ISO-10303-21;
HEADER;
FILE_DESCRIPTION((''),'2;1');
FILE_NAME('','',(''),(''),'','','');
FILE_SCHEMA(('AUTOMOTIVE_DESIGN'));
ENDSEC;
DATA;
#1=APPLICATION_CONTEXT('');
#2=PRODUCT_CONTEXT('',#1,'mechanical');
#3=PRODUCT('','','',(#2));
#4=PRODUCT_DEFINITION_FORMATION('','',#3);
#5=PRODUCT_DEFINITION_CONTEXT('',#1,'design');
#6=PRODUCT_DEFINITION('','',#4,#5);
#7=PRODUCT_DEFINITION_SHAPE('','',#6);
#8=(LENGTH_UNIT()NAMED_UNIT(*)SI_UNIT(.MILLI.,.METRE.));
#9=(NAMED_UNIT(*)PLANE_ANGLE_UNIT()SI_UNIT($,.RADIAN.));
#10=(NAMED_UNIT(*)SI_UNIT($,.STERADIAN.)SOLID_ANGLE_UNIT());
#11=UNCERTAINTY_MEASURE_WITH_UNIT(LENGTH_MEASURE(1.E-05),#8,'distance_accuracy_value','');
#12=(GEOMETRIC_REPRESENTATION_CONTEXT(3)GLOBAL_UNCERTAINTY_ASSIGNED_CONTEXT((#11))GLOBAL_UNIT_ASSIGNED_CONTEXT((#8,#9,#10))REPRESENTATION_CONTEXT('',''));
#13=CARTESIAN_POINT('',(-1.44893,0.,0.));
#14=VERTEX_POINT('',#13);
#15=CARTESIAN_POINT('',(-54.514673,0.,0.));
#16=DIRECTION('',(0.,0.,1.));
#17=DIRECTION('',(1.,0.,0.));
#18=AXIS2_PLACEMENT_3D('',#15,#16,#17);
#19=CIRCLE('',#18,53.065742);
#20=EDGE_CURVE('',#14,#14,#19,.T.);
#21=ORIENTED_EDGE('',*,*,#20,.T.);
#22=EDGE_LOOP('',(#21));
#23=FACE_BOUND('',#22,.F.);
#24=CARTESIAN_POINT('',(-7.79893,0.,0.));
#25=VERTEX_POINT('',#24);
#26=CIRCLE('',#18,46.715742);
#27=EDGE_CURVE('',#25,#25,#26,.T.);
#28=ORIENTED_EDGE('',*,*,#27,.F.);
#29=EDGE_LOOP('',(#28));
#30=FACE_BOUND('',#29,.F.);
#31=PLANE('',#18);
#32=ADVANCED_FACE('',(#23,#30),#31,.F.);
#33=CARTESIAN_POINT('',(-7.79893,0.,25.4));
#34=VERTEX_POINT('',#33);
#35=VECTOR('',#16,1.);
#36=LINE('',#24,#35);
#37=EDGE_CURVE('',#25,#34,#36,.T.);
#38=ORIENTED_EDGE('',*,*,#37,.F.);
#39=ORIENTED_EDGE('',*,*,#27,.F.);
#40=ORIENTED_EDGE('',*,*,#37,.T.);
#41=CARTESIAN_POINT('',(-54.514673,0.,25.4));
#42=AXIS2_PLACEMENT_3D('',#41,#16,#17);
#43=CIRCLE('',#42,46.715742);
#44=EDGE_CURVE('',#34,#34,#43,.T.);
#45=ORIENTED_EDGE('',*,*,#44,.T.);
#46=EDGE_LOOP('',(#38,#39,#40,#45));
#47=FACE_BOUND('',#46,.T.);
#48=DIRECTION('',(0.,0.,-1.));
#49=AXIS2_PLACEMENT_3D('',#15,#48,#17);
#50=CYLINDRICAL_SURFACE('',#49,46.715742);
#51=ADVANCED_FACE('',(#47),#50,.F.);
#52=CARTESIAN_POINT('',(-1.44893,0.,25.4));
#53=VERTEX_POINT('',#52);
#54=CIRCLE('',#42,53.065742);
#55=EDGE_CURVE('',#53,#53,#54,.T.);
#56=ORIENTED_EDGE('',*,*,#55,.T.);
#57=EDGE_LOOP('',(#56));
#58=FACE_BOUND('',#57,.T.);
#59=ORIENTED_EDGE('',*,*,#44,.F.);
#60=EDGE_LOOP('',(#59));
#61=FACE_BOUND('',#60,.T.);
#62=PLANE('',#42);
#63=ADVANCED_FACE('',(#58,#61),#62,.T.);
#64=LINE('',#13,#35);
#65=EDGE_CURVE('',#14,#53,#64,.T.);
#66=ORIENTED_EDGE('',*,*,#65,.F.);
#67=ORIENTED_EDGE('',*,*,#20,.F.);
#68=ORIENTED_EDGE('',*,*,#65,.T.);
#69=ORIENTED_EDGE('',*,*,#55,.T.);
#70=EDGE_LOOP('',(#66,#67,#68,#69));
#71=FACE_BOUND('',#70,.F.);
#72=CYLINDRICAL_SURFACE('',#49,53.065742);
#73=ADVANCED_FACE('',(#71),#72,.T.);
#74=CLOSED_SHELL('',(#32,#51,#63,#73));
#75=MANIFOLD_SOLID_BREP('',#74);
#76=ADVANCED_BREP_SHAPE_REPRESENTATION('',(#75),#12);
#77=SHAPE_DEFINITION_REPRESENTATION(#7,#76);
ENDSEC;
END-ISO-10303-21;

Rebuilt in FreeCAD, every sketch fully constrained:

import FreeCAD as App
import Part
import Sketcher
from FreeCAD import Vector


def faces_at(feature, points):
    """Names of the faces that lie closest to the given points."""
    faces = feature.Shape.Faces
    near = lambda p: min(range(len(faces)), key=lambda i: faces[i].distToShape(Part.Vertex(*p))[0])
    return sorted({f"Face{near(p) + 1}" for p in points})

doc = App.newDocument("Part")
params = doc.addObject("Spreadsheet::Sheet", "Params")
for row, (alias, value) in enumerate([
    ("pad1_length", "1 in"),
    ("pad2_length", "1 in"),
    ("thickness_wall", "0.25 in"),
], start=1):
    params.set(f"A{row}", alias)
    params.set(f"B{row}", "=" + value)
    params.setAlias(f"B{row}", alias)

body = doc.addObject("PartDesign::Body", "Body")

# Sketch on XY plane
sketch1 = doc.addObject("Sketcher::SketchObject", "Sketch")
body.addObject(sketch1)
sketch1.AttachmentSupport = (doc.XY_Plane, [""])
sketch1.MapMode = "FlatFace"
sketch1.addGeometry(Part.Circle(Vector(-54, 0, 0), Vector(0, 0, 1), 54), False)
sketch1.addConstraint([
    Sketcher.Constraint("PointOnObject", 0, 3, -1),
    Sketcher.Constraint("Diameter", 0, 107.706785),
    Sketcher.Constraint("DistanceX", 0, 3, -1, 1, 53.853393),
])
pad1 = doc.addObject("PartDesign::Pad", "Pad")
body.addObject(pad1)
pad1.Profile = sketch1
pad1.setExpression("Length", "Params.pad1_length")
body2 = doc.addObject("PartDesign::Body", "Body001")

# Sketch on XY plane
sketch2 = doc.addObject("Sketcher::SketchObject", "Sketch001")
body2.addObject(sketch2)
sketch2.AttachmentSupport = (doc.getObject("XY_Plane001"), [""])
sketch2.MapMode = "FlatFace"
sketch2.addGeometry(Part.Circle(Vector(-55, 0, 0), Vector(0, 0, 1), 53), False)
sketch2.addConstraint([
    Sketcher.Constraint("PointOnObject", 0, 3, -1),
    Sketcher.Constraint("Diameter", 0, 106.131485),
    Sketcher.Constraint("DistanceX", 0, 3, -1, 1, 54.514673),
])
pad2 = doc.addObject("PartDesign::Pad", "Pad001")
body2.addObject(pad2)
pad2.Profile = sketch2
pad2.setExpression("Length", "Params.pad2_length")
doc.recompute()

thickness = doc.addObject("PartDesign::Thickness", "Thickness")
body2.addObject(thickness)
thickness.Base = (pad2, faces_at(pad2, [(-54.515, 0, 0), (-54.515, 0, 25.4)]))
thickness.setExpression("Value", "Params.thickness_wall")
thickness.Reversed = True
thickness.Join = "Arc"
body.Visibility = False

doc.recompute()
